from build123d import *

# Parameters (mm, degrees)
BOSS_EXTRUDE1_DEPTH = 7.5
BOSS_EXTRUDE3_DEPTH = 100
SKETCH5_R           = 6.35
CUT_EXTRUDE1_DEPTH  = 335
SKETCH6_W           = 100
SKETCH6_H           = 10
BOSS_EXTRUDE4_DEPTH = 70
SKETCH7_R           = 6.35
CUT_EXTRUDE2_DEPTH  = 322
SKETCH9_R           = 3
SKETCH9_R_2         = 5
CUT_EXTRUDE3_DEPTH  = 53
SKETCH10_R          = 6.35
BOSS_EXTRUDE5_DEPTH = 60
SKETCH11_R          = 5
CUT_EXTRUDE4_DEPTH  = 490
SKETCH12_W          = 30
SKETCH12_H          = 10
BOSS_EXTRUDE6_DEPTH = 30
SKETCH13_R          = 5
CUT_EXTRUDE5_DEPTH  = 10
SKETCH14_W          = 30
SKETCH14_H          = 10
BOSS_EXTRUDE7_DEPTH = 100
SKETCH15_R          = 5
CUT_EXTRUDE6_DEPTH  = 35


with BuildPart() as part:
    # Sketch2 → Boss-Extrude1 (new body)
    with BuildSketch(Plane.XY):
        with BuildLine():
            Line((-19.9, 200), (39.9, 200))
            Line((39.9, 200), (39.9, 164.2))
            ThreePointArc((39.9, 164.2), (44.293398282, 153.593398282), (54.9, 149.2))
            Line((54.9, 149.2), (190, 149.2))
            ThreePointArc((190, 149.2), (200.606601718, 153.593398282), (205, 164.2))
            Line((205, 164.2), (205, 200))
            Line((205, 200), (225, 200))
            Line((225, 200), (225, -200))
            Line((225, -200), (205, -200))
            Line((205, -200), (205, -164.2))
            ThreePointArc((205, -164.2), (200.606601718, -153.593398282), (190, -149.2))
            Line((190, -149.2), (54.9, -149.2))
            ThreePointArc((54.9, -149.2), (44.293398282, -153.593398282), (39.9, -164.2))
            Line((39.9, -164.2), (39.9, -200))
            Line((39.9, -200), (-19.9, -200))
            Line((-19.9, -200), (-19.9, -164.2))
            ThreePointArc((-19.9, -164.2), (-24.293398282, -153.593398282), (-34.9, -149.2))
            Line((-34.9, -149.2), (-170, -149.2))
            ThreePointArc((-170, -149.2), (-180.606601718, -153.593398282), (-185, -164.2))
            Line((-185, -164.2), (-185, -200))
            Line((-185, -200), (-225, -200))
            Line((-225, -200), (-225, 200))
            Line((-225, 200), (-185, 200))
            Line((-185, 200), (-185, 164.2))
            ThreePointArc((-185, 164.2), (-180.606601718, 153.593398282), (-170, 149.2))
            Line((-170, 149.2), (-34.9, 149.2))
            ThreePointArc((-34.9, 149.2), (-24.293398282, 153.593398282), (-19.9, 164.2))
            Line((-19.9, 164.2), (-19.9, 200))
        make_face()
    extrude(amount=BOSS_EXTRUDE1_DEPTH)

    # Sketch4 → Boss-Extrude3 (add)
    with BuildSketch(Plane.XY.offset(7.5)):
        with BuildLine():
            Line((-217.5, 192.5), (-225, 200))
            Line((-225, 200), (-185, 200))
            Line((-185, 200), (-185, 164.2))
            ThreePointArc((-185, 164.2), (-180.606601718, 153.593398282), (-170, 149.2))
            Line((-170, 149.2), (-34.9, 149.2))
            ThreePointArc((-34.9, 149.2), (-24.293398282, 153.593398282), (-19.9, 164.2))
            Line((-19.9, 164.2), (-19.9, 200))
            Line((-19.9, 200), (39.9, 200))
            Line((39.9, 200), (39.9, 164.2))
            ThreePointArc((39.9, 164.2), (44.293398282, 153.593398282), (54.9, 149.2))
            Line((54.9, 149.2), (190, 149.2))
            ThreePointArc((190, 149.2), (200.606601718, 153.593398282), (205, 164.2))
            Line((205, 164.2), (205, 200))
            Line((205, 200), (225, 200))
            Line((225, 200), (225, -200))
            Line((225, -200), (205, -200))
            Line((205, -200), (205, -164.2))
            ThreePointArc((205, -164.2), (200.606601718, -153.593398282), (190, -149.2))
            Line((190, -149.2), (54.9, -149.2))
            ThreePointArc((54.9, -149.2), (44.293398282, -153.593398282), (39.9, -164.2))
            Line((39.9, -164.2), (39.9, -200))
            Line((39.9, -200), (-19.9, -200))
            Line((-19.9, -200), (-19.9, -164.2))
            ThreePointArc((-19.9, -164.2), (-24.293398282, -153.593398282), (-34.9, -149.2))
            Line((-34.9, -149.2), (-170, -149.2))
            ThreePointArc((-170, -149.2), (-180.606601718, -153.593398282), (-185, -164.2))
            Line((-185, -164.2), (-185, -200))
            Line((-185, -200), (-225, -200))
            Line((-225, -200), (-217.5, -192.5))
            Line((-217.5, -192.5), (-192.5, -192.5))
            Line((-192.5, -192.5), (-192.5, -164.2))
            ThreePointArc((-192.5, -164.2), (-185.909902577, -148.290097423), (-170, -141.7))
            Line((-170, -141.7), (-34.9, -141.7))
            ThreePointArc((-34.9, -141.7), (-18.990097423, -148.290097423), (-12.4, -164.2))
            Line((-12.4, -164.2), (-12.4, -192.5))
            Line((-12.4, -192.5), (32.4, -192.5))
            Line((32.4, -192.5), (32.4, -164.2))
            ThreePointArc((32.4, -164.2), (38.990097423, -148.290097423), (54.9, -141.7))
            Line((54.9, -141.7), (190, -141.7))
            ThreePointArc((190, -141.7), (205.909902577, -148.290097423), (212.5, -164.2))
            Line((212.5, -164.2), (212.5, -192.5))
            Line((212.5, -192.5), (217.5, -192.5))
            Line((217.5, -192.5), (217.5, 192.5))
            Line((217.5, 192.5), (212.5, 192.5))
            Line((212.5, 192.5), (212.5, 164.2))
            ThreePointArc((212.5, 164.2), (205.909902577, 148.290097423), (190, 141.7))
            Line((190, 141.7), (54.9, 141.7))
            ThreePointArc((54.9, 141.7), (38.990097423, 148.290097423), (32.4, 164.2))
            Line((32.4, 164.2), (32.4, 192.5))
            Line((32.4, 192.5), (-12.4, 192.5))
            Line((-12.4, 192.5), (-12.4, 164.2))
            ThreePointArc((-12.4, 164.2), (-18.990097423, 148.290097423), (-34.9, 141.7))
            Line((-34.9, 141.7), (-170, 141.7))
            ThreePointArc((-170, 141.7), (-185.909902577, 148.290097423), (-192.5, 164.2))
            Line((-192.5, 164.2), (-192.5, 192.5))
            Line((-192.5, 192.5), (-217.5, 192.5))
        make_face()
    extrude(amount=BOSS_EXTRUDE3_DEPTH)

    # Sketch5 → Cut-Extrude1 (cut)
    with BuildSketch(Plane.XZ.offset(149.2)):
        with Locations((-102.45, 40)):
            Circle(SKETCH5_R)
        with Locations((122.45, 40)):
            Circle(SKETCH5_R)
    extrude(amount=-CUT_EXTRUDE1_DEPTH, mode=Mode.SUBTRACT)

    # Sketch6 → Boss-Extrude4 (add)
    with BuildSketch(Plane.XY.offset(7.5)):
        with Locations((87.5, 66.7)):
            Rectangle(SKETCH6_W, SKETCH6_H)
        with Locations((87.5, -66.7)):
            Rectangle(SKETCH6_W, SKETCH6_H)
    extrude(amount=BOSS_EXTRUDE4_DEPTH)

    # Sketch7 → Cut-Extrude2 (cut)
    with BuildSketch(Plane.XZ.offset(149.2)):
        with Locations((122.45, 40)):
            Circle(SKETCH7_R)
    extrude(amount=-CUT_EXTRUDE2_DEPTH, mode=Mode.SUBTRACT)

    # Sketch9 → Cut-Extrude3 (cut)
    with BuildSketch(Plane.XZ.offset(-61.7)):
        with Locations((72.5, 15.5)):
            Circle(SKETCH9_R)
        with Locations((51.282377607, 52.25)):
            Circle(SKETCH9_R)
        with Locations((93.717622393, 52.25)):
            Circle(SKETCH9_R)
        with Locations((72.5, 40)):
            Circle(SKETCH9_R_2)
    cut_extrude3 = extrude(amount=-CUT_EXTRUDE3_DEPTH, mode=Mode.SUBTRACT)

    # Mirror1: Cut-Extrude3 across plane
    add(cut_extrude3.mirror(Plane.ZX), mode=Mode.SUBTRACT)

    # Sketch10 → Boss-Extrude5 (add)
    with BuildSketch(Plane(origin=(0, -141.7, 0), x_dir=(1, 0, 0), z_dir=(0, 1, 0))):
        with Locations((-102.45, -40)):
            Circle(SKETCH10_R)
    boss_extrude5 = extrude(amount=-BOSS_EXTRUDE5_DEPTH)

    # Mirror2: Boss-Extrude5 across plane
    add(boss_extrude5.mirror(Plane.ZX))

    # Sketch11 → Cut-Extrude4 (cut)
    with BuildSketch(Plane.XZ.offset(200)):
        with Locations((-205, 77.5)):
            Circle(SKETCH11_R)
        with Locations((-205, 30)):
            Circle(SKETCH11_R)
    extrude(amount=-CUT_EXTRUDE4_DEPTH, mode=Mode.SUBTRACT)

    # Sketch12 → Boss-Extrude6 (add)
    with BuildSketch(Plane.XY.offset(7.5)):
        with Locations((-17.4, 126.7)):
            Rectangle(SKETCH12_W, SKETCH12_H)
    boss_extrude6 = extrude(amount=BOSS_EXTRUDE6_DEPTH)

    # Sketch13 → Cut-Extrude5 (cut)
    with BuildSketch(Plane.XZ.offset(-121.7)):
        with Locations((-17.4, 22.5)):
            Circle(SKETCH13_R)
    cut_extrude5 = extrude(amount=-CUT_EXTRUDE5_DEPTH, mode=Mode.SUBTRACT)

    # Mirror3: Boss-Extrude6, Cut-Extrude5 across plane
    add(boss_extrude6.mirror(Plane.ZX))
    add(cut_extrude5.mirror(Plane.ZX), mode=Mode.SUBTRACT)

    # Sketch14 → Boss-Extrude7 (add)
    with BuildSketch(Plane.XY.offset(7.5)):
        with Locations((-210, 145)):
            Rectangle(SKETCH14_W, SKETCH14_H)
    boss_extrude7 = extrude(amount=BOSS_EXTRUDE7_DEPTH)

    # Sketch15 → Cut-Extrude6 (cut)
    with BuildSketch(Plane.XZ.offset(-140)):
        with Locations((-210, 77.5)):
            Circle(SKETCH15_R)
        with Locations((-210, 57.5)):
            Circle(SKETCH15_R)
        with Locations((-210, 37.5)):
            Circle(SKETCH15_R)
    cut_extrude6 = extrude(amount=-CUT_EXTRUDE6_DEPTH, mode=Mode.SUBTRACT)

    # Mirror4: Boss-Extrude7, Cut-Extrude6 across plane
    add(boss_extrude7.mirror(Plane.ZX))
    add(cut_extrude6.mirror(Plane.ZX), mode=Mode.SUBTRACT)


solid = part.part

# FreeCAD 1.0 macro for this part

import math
import FreeCAD as App
import Part
import Sketcher
Q = App.Units.Quantity

doc = App.newDocument("Part")
body = doc.addObject("PartDesign::Body", "Body")

sketch1 = body.newObject("Sketcher::SketchObject", "Sketch")
sketch1.AttachmentSupport = (doc.getObject("XY_Plane"), [""])
sketch1.MapMode = "FlatFace"
sketch1.addGeometry(Part.LineSegment(App.Vector(40, 200, 0), App.Vector(-20, 200, 0)), False)
sketch1.addGeometry(Part.LineSegment(App.Vector(-20, 200, 0), App.Vector(-20, 164, 0)), False)
sketch1.addGeometry(Part.ArcOfCircle(Part.Circle(App.Vector(-35, 164, 0), App.Vector(0, 0, 1), 15), math.radians(-90), math.radians(0)), False)
sketch1.addGeometry(Part.LineSegment(App.Vector(-35, 149, 0), App.Vector(-170, 149, 0)), False)
sketch1.addGeometry(Part.ArcOfCircle(Part.Circle(App.Vector(-170, 164, 0), App.Vector(0, 0, 1), 15), math.radians(180), math.radians(270)), False)
sketch1.addGeometry(Part.LineSegment(App.Vector(-185, 164, 0), App.Vector(-185, 200, 0)), False)
sketch1.addGeometry(Part.LineSegment(App.Vector(-185, 200, 0), App.Vector(-225, 200, 0)), False)
sketch1.addGeometry(Part.LineSegment(App.Vector(-225, 200, 0), App.Vector(-225, -200, 0)), False)
sketch1.addGeometry(Part.LineSegment(App.Vector(-225, -200, 0), App.Vector(-185, -200, 0)), False)
sketch1.addGeometry(Part.LineSegment(App.Vector(-185, -200, 0), App.Vector(-185, -164, 0)), False)
sketch1.addGeometry(Part.ArcOfCircle(Part.Circle(App.Vector(-170, -164, 0), App.Vector(0, 0, 1), 15), math.radians(90), math.radians(180)), False)
sketch1.addGeometry(Part.LineSegment(App.Vector(-170, -149, 0), App.Vector(-35, -149, 0)), False)
sketch1.addGeometry(Part.ArcOfCircle(Part.Circle(App.Vector(-35, -164, 0), App.Vector(0, 0, 1), 15), math.radians(0), math.radians(90)), False)
sketch1.addGeometry(Part.LineSegment(App.Vector(-20, -164, 0), App.Vector(-20, -200, 0)), False)
sketch1.addGeometry(Part.LineSegment(App.Vector(-20, -200, 0), App.Vector(40, -200, 0)), False)
sketch1.addGeometry(Part.LineSegment(App.Vector(40, -200, 0), App.Vector(40, -164, 0)), False)
sketch1.addGeometry(Part.ArcOfCircle(Part.Circle(App.Vector(55, -164, 0), App.Vector(0, 0, 1), 15), math.radians(90), math.radians(180)), False)
sketch1.addGeometry(Part.LineSegment(App.Vector(55, -149, 0), App.Vector(190, -149, 0)), False)
sketch1.addGeometry(Part.ArcOfCircle(Part.Circle(App.Vector(190, -164, 0), App.Vector(0, 0, 1), 15), math.radians(0), math.radians(90)), False)
sketch1.addGeometry(Part.LineSegment(App.Vector(205, -164, 0), App.Vector(205, -200, 0)), False)
sketch1.addGeometry(Part.LineSegment(App.Vector(205, -200, 0), App.Vector(225, -200, 0)), False)
sketch1.addGeometry(Part.LineSegment(App.Vector(225, -200, 0), App.Vector(225, 200, 0)), False)
sketch1.addGeometry(Part.LineSegment(App.Vector(225, 200, 0), App.Vector(205, 200, 0)), False)
sketch1.addGeometry(Part.LineSegment(App.Vector(205, 200, 0), App.Vector(205, 164, 0)), False)
sketch1.addGeometry(Part.ArcOfCircle(Part.Circle(App.Vector(190, 164, 0), App.Vector(0, 0, 1), 15), math.radians(-90), math.radians(0)), False)
sketch1.addGeometry(Part.LineSegment(App.Vector(190, 149, 0), App.Vector(55, 149, 0)), False)
sketch1.addGeometry(Part.ArcOfCircle(Part.Circle(App.Vector(55, 164, 0), App.Vector(0, 0, 1), 15), math.radians(180), math.radians(270)), False)
sketch1.addGeometry(Part.LineSegment(App.Vector(40, 164, 0), App.Vector(40, 200, 0)), False)
sketch1.addConstraint(Sketcher.Constraint("Coincident", 0, 2, 1, 1))
sketch1.addConstraint(Sketcher.Constraint("Tangent", 1, 2, 2, 2))
sketch1.addConstraint(Sketcher.Constraint("Tangent", 2, 1, 3, 1))
sketch1.addConstraint(Sketcher.Constraint("Tangent", 3, 2, 4, 2))
sketch1.addConstraint(Sketcher.Constraint("Tangent", 4, 1, 5, 1))
sketch1.addConstraint(Sketcher.Constraint("Coincident", 5, 2, 6, 1))
sketch1.addConstraint(Sketcher.Constraint("Coincident", 6, 2, 7, 1))
sketch1.addConstraint(Sketcher.Constraint("Coincident", 7, 2, 8, 1))
sketch1.addConstraint(Sketcher.Constraint("Coincident", 8, 2, 9, 1))
sketch1.addConstraint(Sketcher.Constraint("Tangent", 9, 2, 10, 2))
sketch1.addConstraint(Sketcher.Constraint("Tangent", 10, 1, 11, 1))
sketch1.addConstraint(Sketcher.Constraint("Tangent", 11, 2, 12, 2))
sketch1.addConstraint(Sketcher.Constraint("Tangent", 12, 1, 13, 1))
sketch1.addConstraint(Sketcher.Constraint("Coincident", 13, 2, 14, 1))
sketch1.addConstraint(Sketcher.Constraint("Coincident", 14, 2, 15, 1))
sketch1.addConstraint(Sketcher.Constraint("Tangent", 15, 2, 16, 2))
sketch1.addConstraint(Sketcher.Constraint("Tangent", 16, 1, 17, 1))
sketch1.addConstraint(Sketcher.Constraint("Tangent", 17, 2, 18, 2))
sketch1.addConstraint(Sketcher.Constraint("Tangent", 18, 1, 19, 1))
sketch1.addConstraint(Sketcher.Constraint("Coincident", 19, 2, 20, 1))
sketch1.addConstraint(Sketcher.Constraint("Coincident", 20, 2, 21, 1))
sketch1.addConstraint(Sketcher.Constraint("Coincident", 21, 2, 22, 1))
sketch1.addConstraint(Sketcher.Constraint("Coincident", 22, 2, 23, 1))
sketch1.addConstraint(Sketcher.Constraint("Tangent", 23, 2, 24, 2))
sketch1.addConstraint(Sketcher.Constraint("Tangent", 24, 1, 25, 1))
sketch1.addConstraint(Sketcher.Constraint("Tangent", 25, 2, 26, 2))
sketch1.addConstraint(Sketcher.Constraint("Tangent", 26, 1, 27, 1))
sketch1.addConstraint(Sketcher.Constraint("Coincident", 27, 2, 0, 1))
sketch1.addConstraint(Sketcher.Constraint("Horizontal", 0))
sketch1.addConstraint(Sketcher.Constraint("Vertical", 1))
sketch1.addConstraint(Sketcher.Constraint("Horizontal", 3))
sketch1.addConstraint(Sketcher.Constraint("Vertical", 5))
sketch1.addConstraint(Sketcher.Constraint("Horizontal", 6))
sketch1.addConstraint(Sketcher.Constraint("Vertical", 7))
sketch1.addConstraint(Sketcher.Constraint("Horizontal", 8))
sketch1.addConstraint(Sketcher.Constraint("Vertical", 9))
sketch1.addConstraint(Sketcher.Constraint("Horizontal", 11))
sketch1.addConstraint(Sketcher.Constraint("Vertical", 13))
sketch1.addConstraint(Sketcher.Constraint("Horizontal", 14))
sketch1.addConstraint(Sketcher.Constraint("Vertical", 15))
sketch1.addConstraint(Sketcher.Constraint("Horizontal", 17))
sketch1.addConstraint(Sketcher.Constraint("Vertical", 19))
sketch1.addConstraint(Sketcher.Constraint("Horizontal", 20))
sketch1.addConstraint(Sketcher.Constraint("Vertical", 21))
sketch1.addConstraint(Sketcher.Constraint("Horizontal", 22))
sketch1.addConstraint(Sketcher.Constraint("Vertical", 23))
sketch1.addConstraint(Sketcher.Constraint("Horizontal", 25))
sketch1.addConstraint(Sketcher.Constraint("Vertical", 27))
sketch1.addConstraint(Sketcher.Constraint("Equal", 2, 4))
sketch1.addConstraint(Sketcher.Constraint("Equal", 4, 10))
sketch1.addConstraint(Sketcher.Constraint("Equal", 10, 12))
sketch1.addConstraint(Sketcher.Constraint("Equal", 12, 16))
sketch1.addConstraint(Sketcher.Constraint("Equal", 16, 18))
sketch1.addConstraint(Sketcher.Constraint("Equal", 18, 24))
sketch1.addConstraint(Sketcher.Constraint("Equal", 24, 26))
sketch1.addConstraint(Sketcher.Constraint("Symmetric", 6, 2, 20, 2, -1, 1))
sketch1.addConstraint(Sketcher.Constraint("Symmetric", 4, 3, 10, 3, -1))
sketch1.addConstraint(Sketcher.Constraint("Symmetric", 18, 3, 24, 3, -1))
sketch1.addConstraint(Sketcher.Constraint("Symmetric", 0, 2, 13, 2, -1))
sketch1.addConstraint(Sketcher.Constraint("Horizontal", 12, 3, 16, 3))
sketch1.addConstraint(Sketcher.Constraint("Horizontal", 0, 2, 5, 2))
sketch1.addConstraint(Sketcher.Constraint("Horizontal", 8, 2, 13, 2))
sketch1.addConstraint(Sketcher.Constraint("Horizontal", 6, 2, 21, 2))
sketch1.addConstraint(Sketcher.Constraint("Vertical", 16, 3, 26, 3))
sketch1.addConstraint(Sketcher.Constraint("Equal", 11, 17))
sketch1.addConstraint(Sketcher.Constraint("Radius", 2, Q("15 mm")))
sketch1.addConstraint(Sketcher.Constraint("DistanceX", 6, 2, 6, 1, Q("40 mm")))
sketch1.addConstraint(Sketcher.Constraint("DistanceX", 20, 1, 20, 2, Q("20 mm")))
sketch1.addConstraint(Sketcher.Constraint("DistanceY", 7, 2, 7, 1, Q("400 mm")))
sketch1.addConstraint(Sketcher.Constraint("DistanceX", 0, 2, 0, 1, Q("59.8 mm")))
sketch1.addConstraint(Sketcher.Constraint("DistanceX", 3, 2, 3, 1, Q("135.1 mm")))
sketch1.addConstraint(Sketcher.Constraint("DistanceY", 1, 2, 1, 1, Q("35.8 mm")))
pad1 = body.newObject("PartDesign::Pad", "Pad")
pad1.Profile = sketch1
pad1.Length = 7.5

sketch2 = body.newObject("Sketcher::SketchObject", "Sketch001")
sketch2.AttachmentSupport = (doc.getObject("XY_Plane"), [""])
sketch2.MapMode = "FlatFace"
sketch2.AttachmentOffset = App.Placement(App.Vector(0, 0, 7.5), App.Rotation())
sketch2.addGeometry(Part.LineSegment(App.Vector(-225, 200, 0), App.Vector(-218, 192, 0)), False)
sketch2.addGeometry(Part.LineSegment(App.Vector(-218, 192, 0), App.Vector(-192, 192, 0)), False)
sketch2.addGeometry(Part.LineSegment(App.Vector(-192, 192, 0), App.Vector(-192, 164, 0)), False)
sketch2.addGeometry(Part.ArcOfCircle(Part.Circle(App.Vector(-170, 164, 0), App.Vector(0, 0, 1), 22), math.radians(180), math.radians(270)), False)
sketch2.addGeometry(Part.LineSegment(App.Vector(-170, 142, 0), App.Vector(-35, 142, 0)), False)
sketch2.addGeometry(Part.ArcOfCircle(Part.Circle(App.Vector(-35, 164, 0), App.Vector(0, 0, 1), 22), math.radians(-90), math.radians(0)), False)
sketch2.addGeometry(Part.LineSegment(App.Vector(-12, 164, 0), App.Vector(-12, 192, 0)), False)
sketch2.addGeometry(Part.LineSegment(App.Vector(-12, 192, 0), App.Vector(32, 192, 0)), False)
sketch2.addGeometry(Part.LineSegment(App.Vector(32, 192, 0), App.Vector(32, 164, 0)), False)
sketch2.addGeometry(Part.ArcOfCircle(Part.Circle(App.Vector(55, 164, 0), App.Vector(0, 0, 1), 22), math.radians(180), math.radians(270)), False)
sketch2.addGeometry(Part.LineSegment(App.Vector(55, 142, 0), App.Vector(190, 142, 0)), False)
sketch2.addGeometry(Part.ArcOfCircle(Part.Circle(App.Vector(190, 164, 0), App.Vector(0, 0, 1), 22), math.radians(-90), math.radians(0)), False)
sketch2.addGeometry(Part.LineSegment(App.Vector(212, 164, 0), App.Vector(212, 192, 0)), False)
sketch2.addGeometry(Part.LineSegment(App.Vector(212, 192, 0), App.Vector(218, 192, 0)), False)
sketch2.addGeometry(Part.LineSegment(App.Vector(218, 192, 0), App.Vector(218, -192, 0)), False)
sketch2.addGeometry(Part.LineSegment(App.Vector(218, -192, 0), App.Vector(212, -192, 0)), False)
sketch2.addGeometry(Part.LineSegment(App.Vector(212, -192, 0), App.Vector(212, -164, 0)), False)
sketch2.addGeometry(Part.ArcOfCircle(Part.Circle(App.Vector(190, -164, 0), App.Vector(0, 0, 1), 22), math.radians(0), math.radians(90)), False)
sketch2.addGeometry(Part.LineSegment(App.Vector(190, -142, 0), App.Vector(55, -142, 0)), False)
sketch2.addGeometry(Part.ArcOfCircle(Part.Circle(App.Vector(55, -164, 0), App.Vector(0, 0, 1), 22), math.radians(90), math.radians(180)), False)
sketch2.addGeometry(Part.LineSegment(App.Vector(32, -164, 0), App.Vector(32, -192, 0)), False)
sketch2.addGeometry(Part.LineSegment(App.Vector(32, -192, 0), App.Vector(-12, -192, 0)), False)
sketch2.addGeometry(Part.LineSegment(App.Vector(-12, -192, 0), App.Vector(-12, -164, 0)), False)
sketch2.addGeometry(Part.ArcOfCircle(Part.Circle(App.Vector(-35, -164, 0), App.Vector(0, 0, 1), 22), math.radians(0), math.radians(90)), False)
sketch2.addGeometry(Part.LineSegment(App.Vector(-35, -142, 0), App.Vector(-170, -142, 0)), False)
sketch2.addGeometry(Part.ArcOfCircle(Part.Circle(App.Vector(-170, -164, 0), App.Vector(0, 0, 1), 22), math.radians(90), math.radians(180)), False)
sketch2.addGeometry(Part.LineSegment(App.Vector(-192, -164, 0), App.Vector(-192, -192, 0)), False)
sketch2.addGeometry(Part.LineSegment(App.Vector(-192, -192, 0), App.Vector(-218, -192, 0)), False)
sketch2.addGeometry(Part.LineSegment(App.Vector(-218, -192, 0), App.Vector(-225, -200, 0)), False)
sketch2.addGeometry(Part.LineSegment(App.Vector(-225, -200, 0), App.Vector(-185, -200, 0)), False)
sketch2.addGeometry(Part.LineSegment(App.Vector(-185, -200, 0), App.Vector(-185, -164, 0)), False)
sketch2.addGeometry(Part.ArcOfCircle(Part.Circle(App.Vector(-170, -164, 0), App.Vector(0, 0, 1), 15), math.radians(90), math.radians(180)), False)
sketch2.addGeometry(Part.LineSegment(App.Vector(-170, -149, 0), App.Vector(-35, -149, 0)), False)
sketch2.addGeometry(Part.ArcOfCircle(Part.Circle(App.Vector(-35, -164, 0), App.Vector(0, 0, 1), 15), math.radians(0), math.radians(90)), False)
sketch2.addGeometry(Part.LineSegment(App.Vector(-20, -164, 0), App.Vector(-20, -200, 0)), False)
sketch2.addGeometry(Part.LineSegment(App.Vector(-20, -200, 0), App.Vector(40, -200, 0)), False)
sketch2.addGeometry(Part.LineSegment(App.Vector(40, -200, 0), App.Vector(40, -164, 0)), False)
sketch2.addGeometry(Part.ArcOfCircle(Part.Circle(App.Vector(55, -164, 0), App.Vector(0, 0, 1), 15), math.radians(90), math.radians(180)), False)
sketch2.addGeometry(Part.LineSegment(App.Vector(55, -149, 0), App.Vector(190, -149, 0)), False)
sketch2.addGeometry(Part.ArcOfCircle(Part.Circle(App.Vector(190, -164, 0), App.Vector(0, 0, 1), 15), math.radians(0), math.radians(90)), False)
sketch2.addGeometry(Part.LineSegment(App.Vector(205, -164, 0), App.Vector(205, -200, 0)), False)
sketch2.addGeometry(Part.LineSegment(App.Vector(205, -200, 0), App.Vector(225, -200, 0)), False)
sketch2.addGeometry(Part.LineSegment(App.Vector(225, -200, 0), App.Vector(225, 200, 0)), False)
sketch2.addGeometry(Part.LineSegment(App.Vector(225, 200, 0), App.Vector(205, 200, 0)), False)
sketch2.addGeometry(Part.LineSegment(App.Vector(205, 200, 0), App.Vector(205, 164, 0)), False)
sketch2.addGeometry(Part.ArcOfCircle(Part.Circle(App.Vector(190, 164, 0), App.Vector(0, 0, 1), 15), math.radians(-90), math.radians(0)), False)
sketch2.addGeometry(Part.LineSegment(App.Vector(190, 149, 0), App.Vector(55, 149, 0)), False)
sketch2.addGeometry(Part.ArcOfCircle(Part.Circle(App.Vector(55, 164, 0), App.Vector(0, 0, 1), 15), math.radians(180), math.radians(270)), False)
sketch2.addGeometry(Part.LineSegment(App.Vector(40, 164, 0), App.Vector(40, 200, 0)), False)
sketch2.addGeometry(Part.LineSegment(App.Vector(40, 200, 0), App.Vector(-20, 200, 0)), False)
sketch2.addGeometry(Part.LineSegment(App.Vector(-20, 200, 0), App.Vector(-20, 164, 0)), False)
sketch2.addGeometry(Part.ArcOfCircle(Part.Circle(App.Vector(-35, 164, 0), App.Vector(0, 0, 1), 15), math.radians(-90), math.radians(0)), False)
sketch2.addGeometry(Part.LineSegment(App.Vector(-35, 149, 0), App.Vector(-170, 149, 0)), False)
sketch2.addGeometry(Part.ArcOfCircle(Part.Circle(App.Vector(-170, 164, 0), App.Vector(0, 0, 1), 15), math.radians(180), math.radians(270)), False)
sketch2.addGeometry(Part.LineSegment(App.Vector(-185, 164, 0), App.Vector(-185, 200, 0)), False)
sketch2.addGeometry(Part.LineSegment(App.Vector(-185, 200, 0), App.Vector(-225, 200, 0)), False)
sketch2.addConstraint(Sketcher.Constraint("Coincident", 0, 2, 1, 1))
sketch2.addConstraint(Sketcher.Constraint("Coincident", 1, 2, 2, 1))
sketch2.addConstraint(Sketcher.Constraint("Tangent", 2, 2, 3, 1))
sketch2.addConstraint(Sketcher.Constraint("Tangent", 3, 2, 4, 1))
sketch2.addConstraint(Sketcher.Constraint("Tangent", 4, 2, 5, 1))
sketch2.addConstraint(Sketcher.Constraint("Tangent", 5, 2, 6, 1))
sketch2.addConstraint(Sketcher.Constraint("Coincident", 6, 2, 7, 1))
sketch2.addConstraint(Sketcher.Constraint("Coincident", 7, 2, 8, 1))
sketch2.addConstraint(Sketcher.Constraint("Tangent", 8, 2, 9, 1))
sketch2.addConstraint(Sketcher.Constraint("Tangent", 9, 2, 10, 1))
sketch2.addConstraint(Sketcher.Constraint("Tangent", 10, 2, 11, 1))
sketch2.addConstraint(Sketcher.Constraint("Tangent", 11, 2, 12, 1))
sketch2.addConstraint(Sketcher.Constraint("Coincident", 12, 2, 13, 1))
sketch2.addConstraint(Sketcher.Constraint("Coincident", 13, 2, 14, 1))
sketch2.addConstraint(Sketcher.Constraint("Coincident", 14, 2, 15, 1))
sketch2.addConstraint(Sketcher.Constraint("Coincident", 15, 2, 16, 1))
sketch2.addConstraint(Sketcher.Constraint("Tangent", 16, 2, 17, 1))
sketch2.addConstraint(Sketcher.Constraint("Tangent", 17, 2, 18, 1))
sketch2.addConstraint(Sketcher.Constraint("Tangent", 18, 2, 19, 1))
sketch2.addConstraint(Sketcher.Constraint("Tangent", 19, 2, 20, 1))
sketch2.addConstraint(Sketcher.Constraint("Coincident", 20, 2, 21, 1))
sketch2.addConstraint(Sketcher.Constraint("Coincident", 21, 2, 22, 1))
sketch2.addConstraint(Sketcher.Constraint("Tangent", 22, 2, 23, 1))
sketch2.addConstraint(Sketcher.Constraint("Tangent", 23, 2, 24, 1))
sketch2.addConstraint(Sketcher.Constraint("Tangent", 24, 2, 25, 1))
sketch2.addConstraint(Sketcher.Constraint("Tangent", 25, 2, 26, 1))
sketch2.addConstraint(Sketcher.Constraint("Coincident", 26, 2, 27, 1))
sketch2.addConstraint(Sketcher.Constraint("Coincident", 27, 2, 28, 1))
sketch2.addConstraint(Sketcher.Constraint("Coincident", 28, 2, 29, 1))
sketch2.addConstraint(Sketcher.Constraint("Coincident", 29, 2, 30, 1))
sketch2.addConstraint(Sketcher.Constraint("Tangent", 30, 2, 31, 2))
sketch2.addConstraint(Sketcher.Constraint("Tangent", 31, 1, 32, 1))
sketch2.addConstraint(Sketcher.Constraint("Tangent", 32, 2, 33, 2))
sketch2.addConstraint(Sketcher.Constraint("Tangent", 33, 1, 34, 1))
sketch2.addConstraint(Sketcher.Constraint("Coincident", 34, 2, 35, 1))
sketch2.addConstraint(Sketcher.Constraint("Coincident", 35, 2, 36, 1))
sketch2.addConstraint(Sketcher.Constraint("Tangent", 36, 2, 37, 2))
sketch2.addConstraint(Sketcher.Constraint("Tangent", 37, 1, 38, 1))
sketch2.addConstraint(Sketcher.Constraint("Tangent", 38, 2, 39, 2))
sketch2.addConstraint(Sketcher.Constraint("Tangent", 39, 1, 40, 1))
sketch2.addConstraint(Sketcher.Constraint("Coincident", 40, 2, 41, 1))
sketch2.addConstraint(Sketcher.Constraint("Coincident", 41, 2, 42, 1))
sketch2.addConstraint(Sketcher.Constraint("Coincident", 42, 2, 43, 1))
sketch2.addConstraint(Sketcher.Constraint("Coincident", 43, 2, 44, 1))
sketch2.addConstraint(Sketcher.Constraint("Tangent", 44, 2, 45, 2))
sketch2.addConstraint(Sketcher.Constraint("Tangent", 45, 1, 46, 1))
sketch2.addConstraint(Sketcher.Constraint("Tangent", 46, 2, 47, 2))
sketch2.addConstraint(Sketcher.Constraint("Tangent", 47, 1, 48, 1))
sketch2.addConstraint(Sketcher.Constraint("Coincident", 48, 2, 49, 1))
sketch2.addConstraint(Sketcher.Constraint("Coincident", 49, 2, 50, 1))
sketch2.addConstraint(Sketcher.Constraint("Tangent", 50, 2, 51, 2))
sketch2.addConstraint(Sketcher.Constraint("Tangent", 51, 1, 52, 1))
sketch2.addConstraint(Sketcher.Constraint("Tangent", 52, 2, 53, 2))
sketch2.addConstraint(Sketcher.Constraint("Tangent", 53, 1, 54, 1))
sketch2.addConstraint(Sketcher.Constraint("Coincident", 54, 2, 55, 1))
sketch2.addConstraint(Sketcher.Constraint("Coincident", 55, 2, 0, 1))
sketch2.addConstraint(Sketcher.Constraint("Horizontal", 1))
sketch2.addConstraint(Sketcher.Constraint("Vertical", 2))
sketch2.addConstraint(Sketcher.Constraint("Horizontal", 4))
sketch2.addConstraint(Sketcher.Constraint("Vertical", 6))
sketch2.addConstraint(Sketcher.Constraint("Horizontal", 7))
sketch2.addConstraint(Sketcher.Constraint("Vertical", 8))
sketch2.addConstraint(Sketcher.Constraint("Horizontal", 10))
sketch2.addConstraint(Sketcher.Constraint("Vertical", 12))
sketch2.addConstraint(Sketcher.Constraint("Horizontal", 13))
sketch2.addConstraint(Sketcher.Constraint("Vertical", 14))
sketch2.addConstraint(Sketcher.Constraint("Horizontal", 15))
sketch2.addConstraint(Sketcher.Constraint("Vertical", 16))
sketch2.addConstraint(Sketcher.Constraint("Horizontal", 18))
sketch2.addConstraint(Sketcher.Constraint("Vertical", 20))
sketch2.addConstraint(Sketcher.Constraint("Horizontal", 21))
sketch2.addConstraint(Sketcher.Constraint("Vertical", 22))
sketch2.addConstraint(Sketcher.Constraint("Horizontal", 24))
sketch2.addConstraint(Sketcher.Constraint("Vertical", 26))
sketch2.addConstraint(Sketcher.Constraint("Horizontal", 27))
sketch2.addConstraint(Sketcher.Constraint("Horizontal", 29))
sketch2.addConstraint(Sketcher.Constraint("Vertical", 30))
sketch2.addConstraint(Sketcher.Constraint("Horizontal", 32))
sketch2.addConstraint(Sketcher.Constraint("Vertical", 34))
sketch2.addConstraint(Sketcher.Constraint("Horizontal", 35))
sketch2.addConstraint(Sketcher.Constraint("Vertical", 36))
sketch2.addConstraint(Sketcher.Constraint("Horizontal", 38))
sketch2.addConstraint(Sketcher.Constraint("Vertical", 40))
sketch2.addConstraint(Sketcher.Constraint("Horizontal", 41))
sketch2.addConstraint(Sketcher.Constraint("Vertical", 42))
sketch2.addConstraint(Sketcher.Constraint("Horizontal", 43))
sketch2.addConstraint(Sketcher.Constraint("Vertical", 44))
sketch2.addConstraint(Sketcher.Constraint("Horizontal", 46))
sketch2.addConstraint(Sketcher.Constraint("Vertical", 48))
sketch2.addConstraint(Sketcher.Constraint("Horizontal", 49))
sketch2.addConstraint(Sketcher.Constraint("Vertical", 50))
sketch2.addConstraint(Sketcher.Constraint("Horizontal", 52))
sketch2.addConstraint(Sketcher.Constraint("Vertical", 54))
sketch2.addConstraint(Sketcher.Constraint("Horizontal", 55))
sketch2.addConstraint(Sketcher.Constraint("Coincident", 31, 3, 25, 3))
sketch2.addConstraint(Sketcher.Constraint("Coincident", 33, 3, 23, 3))
sketch2.addConstraint(Sketcher.Constraint("Coincident", 37, 3, 19, 3))
sketch2.addConstraint(Sketcher.Constraint("Coincident", 39, 3, 17, 3))
sketch2.addConstraint(Sketcher.Constraint("Coincident", 45, 3, 11, 3))
sketch2.addConstraint(Sketcher.Constraint("Coincident", 47, 3, 9, 3))
sketch2.addConstraint(Sketcher.Constraint("Coincident", 51, 3, 5, 3))
sketch2.addConstraint(Sketcher.Constraint("Coincident", 53, 3, 3, 3))
sketch2.addConstraint(Sketcher.Constraint("Equal", 3, 5))
sketch2.addConstraint(Sketcher.Constraint("Equal", 5, 9))
sketch2.addConstraint(Sketcher.Constraint("Equal", 9, 11))
sketch2.addConstraint(Sketcher.Constraint("Equal", 11, 17))
sketch2.addConstraint(Sketcher.Constraint("Equal", 17, 19))
sketch2.addConstraint(Sketcher.Constraint("Equal", 19, 23))
sketch2.addConstraint(Sketcher.Constraint("Equal", 23, 25))
sketch2.addConstraint(Sketcher.Constraint("Equal", 33, 37))
sketch2.addConstraint(Sketcher.Constraint("Equal", 39, 45))
sketch2.addConstraint(Sketcher.Constraint("Equal", 47, 51))
sketch2.addConstraint(Sketcher.Constraint("Symmetric", 0, 2, 14, 2, -1, 1))
sketch2.addConstraint(Sketcher.Constraint("Symmetric", 13, 2, 27, 2, -1, 1))
sketch2.addConstraint(Sketcher.Constraint("Symmetric", 28, 2, 42, 2, -1, 1))
sketch2.addConstraint(Sketcher.Constraint("Symmetric", 41, 2, 55, 2, -1, 1))
sketch2.addConstraint(Sketcher.Constraint("Symmetric", 11, 3, 17, 3, -1))
sketch2.addConstraint(Sketcher.Constraint("Symmetric", 5, 3, 23, 3, -1))
sketch2.addConstraint(Sketcher.Constraint("Symmetric", 7, 2, 20, 2, -1))
sketch2.addConstraint(Sketcher.Constraint("Symmetric", 1, 2, 26, 2, -1))
sketch2.addConstraint(Sketcher.Constraint("Perpendicular", 0, 28))
sketch2.addConstraint(Sketcher.Constraint("Horizontal", 5, 3, 9, 3))
sketch2.addConstraint(Sketcher.Constraint("Horizontal", 1, 2, 6, 2))
sketch2.addConstraint(Sketcher.Constraint("Horizontal", 29, 2, 34, 2))
sketch2.addConstraint(Sketcher.Constraint("Horizontal", 35, 2, 40, 2))
sketch2.addConstraint(Sketcher.Constraint("Horizontal", 43, 2, 48, 2))
sketch2.addConstraint(Sketcher.Constraint("Equal", 4, 10))
sketch2.addConstraint(Sketcher.Constraint("Radius", 31, Q("15 mm")))
sketch2.addConstraint(Sketcher.Constraint("Radius", 3, Q("22.5 mm")))
sketch2.addConstraint(Sketcher.Constraint("DistanceX", 1, 1, 1, 2, Q("25 mm")))
sketch2.addConstraint(Sketcher.Constraint("DistanceX", 13, 1, 13, 2, Q("5 mm")))
sketch2.addConstraint(Sketcher.Constraint("DistanceX", 29, 1, 29, 2, Q("40 mm")))
sketch2.addConstraint(Sketcher.Constraint("DistanceY", 14, 2, 14, 1, Q("385 mm")))
sketch2.addConstraint(Sketcher.Constraint("DistanceX", 4, 1, 4, 2, Q("135.1 mm")))
sketch2.addConstraint(Sketcher.Constraint("DistanceX", 7, 1, 7, 2, Q("44.8 mm")))
sketch2.addConstraint(Sketcher.Constraint("DistanceY", 2, 2, 2, 1, Q("28.3 mm")))
pad2 = body.newObject("PartDesign::Pad", "Pad001")
pad2.Profile = sketch2
pad2.Length = 100

sketch3 = body.newObject("Sketcher::SketchObject", "Sketch002")
sketch3.AttachmentSupport = (doc.getObject("XZ_Plane"), [""])
sketch3.MapMode = "FlatFace"
sketch3.AttachmentOffset = App.Placement(App.Vector(0, 0, 149.2), App.Rotation())
sketch3.addGeometry(Part.Circle(App.Vector(-102, 40, 0), App.Vector(0, 0, 1), 6), False)
sketch3.addGeometry(Part.Circle(App.Vector(122, 40, 0), App.Vector(0, 0, 1), 6), False)
sketch3.addConstraint(Sketcher.Constraint("Equal", 0, 1))
sketch3.addConstraint(Sketcher.Constraint("Horizontal", 0, 3, 1, 3))
sketch3.addConstraint(Sketcher.Constraint("Diameter", 0, Q("12.7 mm")))
sketch3.addConstraint(Sketcher.Constraint("DistanceY", -1, 1, 0, 3, Q("40 mm")))
sketch3.addConstraint(Sketcher.Constraint("DistanceX", 0, 3, 1, 3, Q("224.9 mm")))
sketch3.addConstraint(Sketcher.Constraint("DistanceX", 0, 3, -1, 1, Q("102.45 mm")))
pocket1 = body.newObject("PartDesign::Pocket", "Pocket")
pocket1.Profile = sketch3
pocket1.Length = 335

sketch4 = body.newObject("Sketcher::SketchObject", "Sketch003")
sketch4.AttachmentSupport = (doc.getObject("XY_Plane"), [""])
sketch4.MapMode = "FlatFace"
sketch4.AttachmentOffset = App.Placement(App.Vector(0, 0, 7.5), App.Rotation())
sketch4.addGeometry(Part.LineSegment(App.Vector(38, 72, 0), App.Vector(38, 62, 0)), False)
sketch4.addGeometry(Part.LineSegment(App.Vector(38, 62, 0), App.Vector(138, 62, 0)), False)
sketch4.addGeometry(Part.LineSegment(App.Vector(138, 62, 0), App.Vector(138, 72, 0)), False)
sketch4.addGeometry(Part.LineSegment(App.Vector(138, 72, 0), App.Vector(38, 72, 0)), False)
sketch4.addGeometry(Part.LineSegment(App.Vector(38, -62, 0), App.Vector(38, -72, 0)), False)
sketch4.addGeometry(Part.LineSegment(App.Vector(38, -72, 0), App.Vector(138, -72, 0)), False)
sketch4.addGeometry(Part.LineSegment(App.Vector(138, -72, 0), App.Vector(138, -62, 0)), False)
sketch4.addGeometry(Part.LineSegment(App.Vector(138, -62, 0), App.Vector(38, -62, 0)), False)
sketch4.addConstraint(Sketcher.Constraint("Coincident", 0, 2, 1, 1))
sketch4.addConstraint(Sketcher.Constraint("Coincident", 1, 2, 2, 1))
sketch4.addConstraint(Sketcher.Constraint("Coincident", 2, 2, 3, 1))
sketch4.addConstraint(Sketcher.Constraint("Coincident", 3, 2, 0, 1))
sketch4.addConstraint(Sketcher.Constraint("Coincident", 4, 2, 5, 1))
sketch4.addConstraint(Sketcher.Constraint("Coincident", 5, 2, 6, 1))
sketch4.addConstraint(Sketcher.Constraint("Coincident", 6, 2, 7, 1))
sketch4.addConstraint(Sketcher.Constraint("Coincident", 7, 2, 4, 1))
sketch4.addConstraint(Sketcher.Constraint("Vertical", 0))
sketch4.addConstraint(Sketcher.Constraint("Horizontal", 1))
sketch4.addConstraint(Sketcher.Constraint("Vertical", 2))
sketch4.addConstraint(Sketcher.Constraint("Horizontal", 3))
sketch4.addConstraint(Sketcher.Constraint("Vertical", 4))
sketch4.addConstraint(Sketcher.Constraint("Horizontal", 5))
sketch4.addConstraint(Sketcher.Constraint("Vertical", 6))
sketch4.addConstraint(Sketcher.Constraint("Horizontal", 7))
sketch4.addConstraint(Sketcher.Constraint("Symmetric", 3, 2, 4, 2, -1))
sketch4.addConstraint(Sketcher.Constraint("Symmetric", 1, 2, 6, 2, -1))
sketch4.addConstraint(Sketcher.Constraint("DistanceX", 1, 1, 1, 2, Q("100 mm")))
sketch4.addConstraint(Sketcher.Constraint("DistanceY", 0, 2, 0, 1, Q("10 mm")))
sketch4.addConstraint(Sketcher.Constraint("DistanceX", -1, 1, 0, 2, Q("37.5 mm")))
sketch4.addConstraint(Sketcher.Constraint("DistanceY", -1, 1, 0, 2, Q("61.7 mm")))
pad3 = body.newObject("PartDesign::Pad", "Pad002")
pad3.Profile = sketch4
pad3.Length = 70

sketch5 = body.newObject("Sketcher::SketchObject", "Sketch004")
sketch5.AttachmentSupport = (doc.getObject("XZ_Plane"), [""])
sketch5.MapMode = "FlatFace"
sketch5.AttachmentOffset = App.Placement(App.Vector(0, 0, 149.2), App.Rotation())
sketch5.addGeometry(Part.Circle(App.Vector(122, 40, 0), App.Vector(0, 0, 1), 6), False)
sketch5.addConstraint(Sketcher.Constraint("Diameter", 0, Q("12.7 mm")))
sketch5.addConstraint(Sketcher.Constraint("DistanceY", -1, 1, 0, 3, Q("40 mm")))
sketch5.addConstraint(Sketcher.Constraint("DistanceX", -1, 1, 0, 3, Q("122.45 mm")))
pocket2 = body.newObject("PartDesign::Pocket", "Pocket001")
pocket2.Profile = sketch5
pocket2.Length = 322

sketch6 = body.newObject("Sketcher::SketchObject", "Sketch005")
sketch6.AttachmentSupport = (doc.getObject("XZ_Plane"), [""])
sketch6.MapMode = "FlatFace"
sketch6.AttachmentOffset = App.Placement(App.Vector(0, 0, -61.7), App.Rotation())
sketch6.addGeometry(Part.Circle(App.Vector(72.5, 15.5, 0), App.Vector(0, 0, 1), 3), False)
sketch6.addGeometry(Part.Circle(App.Vector(51.3, 52.2, 0), App.Vector(0, 0, 1), 3), False)
sketch6.addGeometry(Part.Circle(App.Vector(93.7, 52.2, 0), App.Vector(0, 0, 1), 3), False)
sketch6.addGeometry(Part.Circle(App.Vector(72.5, 40, 0), App.Vector(0, 0, 1), 5), False)
sketch6.addConstraint(Sketcher.Constraint("Equal", 0, 1))
sketch6.addConstraint(Sketcher.Constraint("Equal", 1, 2))
sketch6.addConstraint(Sketcher.Constraint("Horizontal", 1, 3, 2, 3))
sketch6.addConstraint(Sketcher.Constraint("Vertical", 0, 3, 3, 3))
sketch6.addConstraint(Sketcher.Constraint("Diameter", 0, Q("6 mm")))
sketch6.addConstraint(Sketcher.Constraint("Diameter", 3, Q("10 mm")))
sketch6.addConstraint(Sketcher.Constraint("DistanceY", -1, 1, 3, 3, Q("40 mm")))
sketch6.addConstraint(Sketcher.Constraint("DistanceX", -1, 1, 0, 3, Q("72.5 mm")))
sketch6.addConstraint(Sketcher.Constraint("DistanceY", -1, 1, 0, 3, Q("15.5 mm")))
sketch6.addConstraint(Sketcher.Constraint("DistanceY", -1, 1, 1, 3, Q("52.25 mm")))
sketch6.addConstraint(Sketcher.Constraint("DistanceX", -1, 1, 1, 3, Q("51.282378 mm")))
sketch6.addConstraint(Sketcher.Constraint("DistanceX", -1, 1, 2, 3, Q("93.717622 mm")))
pocket3 = body.newObject("PartDesign::Pocket", "Pocket002")
pocket3.Profile = sketch6
pocket3.Length = 53
doc.recompute()

mirrored = body.newObject("PartDesign::Mirrored", "Mirrored")
mirrored.Originals = [pocket3]
mirrored.MirrorPlane = (doc.getObject("XZ_Plane"), [""])
body.Tip = mirrored

sketch7 = body.newObject("Sketcher::SketchObject", "Sketch006")
sketch7.AttachmentSupport = (doc.getObject("XZ_Plane"), [""])
sketch7.MapMode = "FlatFace"
sketch7.AttachmentOffset = App.Placement(App.Vector(0, 0, 141.7), App.Rotation())
sketch7.addGeometry(Part.Circle(App.Vector(-102, 40, 0), App.Vector(0, 0, 1), 6), False)
sketch7.addConstraint(Sketcher.Constraint("Diameter", 0, Q("12.7 mm")))
sketch7.addConstraint(Sketcher.Constraint("DistanceY", -1, 1, 0, 3, Q("40 mm")))
sketch7.addConstraint(Sketcher.Constraint("DistanceX", 0, 3, -1, 1, Q("102.45 mm")))
pad4 = body.newObject("PartDesign::Pad", "Pad003")
pad4.Profile = sketch7
pad4.Length = 60
doc.recompute()

mirrored2 = body.newObject("PartDesign::Mirrored", "Mirrored001")
mirrored2.Originals = [pad4]
mirrored2.MirrorPlane = (doc.getObject("XZ_Plane"), [""])
body.Tip = mirrored2

sketch8 = body.newObject("Sketcher::SketchObject", "Sketch007")
sketch8.AttachmentSupport = (doc.getObject("XZ_Plane"), [""])
sketch8.MapMode = "FlatFace"
sketch8.AttachmentOffset = App.Placement(App.Vector(0, 0, 200), App.Rotation())
sketch8.addGeometry(Part.Circle(App.Vector(-205, 78, 0), App.Vector(0, 0, 1), 5), False)
sketch8.addGeometry(Part.Circle(App.Vector(-205, 30, 0), App.Vector(0, 0, 1), 5), False)
sketch8.addConstraint(Sketcher.Constraint("Equal", 0, 1))
sketch8.addConstraint(Sketcher.Constraint("Vertical", 0, 3, 1, 3))
sketch8.addConstraint(Sketcher.Constraint("Diameter", 0, Q("10 mm")))
sketch8.addConstraint(Sketcher.Constraint("DistanceX", 0, 3, -1, 1, Q("205 mm")))
sketch8.addConstraint(Sketcher.Constraint("DistanceY", -1, 1, 1, 3, Q("30 mm")))
sketch8.addConstraint(Sketcher.Constraint("DistanceY", -1, 1, 0, 3, Q("77.5 mm")))
pocket4 = body.newObject("PartDesign::Pocket", "Pocket003")
pocket4.Profile = sketch8
pocket4.Length = 490

sketch9 = body.newObject("Sketcher::SketchObject", "Sketch008")
sketch9.AttachmentSupport = (doc.getObject("XY_Plane"), [""])
sketch9.MapMode = "FlatFace"
sketch9.AttachmentOffset = App.Placement(App.Vector(0, 0, 7.5), App.Rotation())
sketch9.addGeometry(Part.LineSegment(App.Vector(-32, 132, 0), App.Vector(-32, 122, 0)), False)
sketch9.addGeometry(Part.LineSegment(App.Vector(-32, 122, 0), App.Vector(-2, 122, 0)), False)
sketch9.addGeometry(Part.LineSegment(App.Vector(-2, 122, 0), App.Vector(-2, 132, 0)), False)
sketch9.addGeometry(Part.LineSegment(App.Vector(-2, 132, 0), App.Vector(-32, 132, 0)), False)
sketch9.addConstraint(Sketcher.Constraint("Coincident", 0, 2, 1, 1))
sketch9.addConstraint(Sketcher.Constraint("Coincident", 1, 2, 2, 1))
sketch9.addConstraint(Sketcher.Constraint("Coincident", 2, 2, 3, 1))
sketch9.addConstraint(Sketcher.Constraint("Coincident", 3, 2, 0, 1))
sketch9.addConstraint(Sketcher.Constraint("Vertical", 0))
sketch9.addConstraint(Sketcher.Constraint("Horizontal", 1))
sketch9.addConstraint(Sketcher.Constraint("Vertical", 2))
sketch9.addConstraint(Sketcher.Constraint("Horizontal", 3))
sketch9.addConstraint(Sketcher.Constraint("DistanceX", 1, 1, 1, 2, Q("30 mm")))
sketch9.addConstraint(Sketcher.Constraint("DistanceY", 0, 2, 0, 1, Q("10 mm")))
sketch9.addConstraint(Sketcher.Constraint("DistanceX", 0, 2, -1, 1, Q("32.4 mm")))
sketch9.addConstraint(Sketcher.Constraint("DistanceY", -1, 1, 0, 2, Q("121.7 mm")))
pad5 = body.newObject("PartDesign::Pad", "Pad004")
pad5.Profile = sketch9
pad5.Length = 30

sketch10 = body.newObject("Sketcher::SketchObject", "Sketch009")
sketch10.AttachmentSupport = (doc.getObject("XZ_Plane"), [""])
sketch10.MapMode = "FlatFace"
sketch10.AttachmentOffset = App.Placement(App.Vector(0, 0, -121.7), App.Rotation())
sketch10.addGeometry(Part.Circle(App.Vector(-17, 22, 0), App.Vector(0, 0, 1), 5), False)
sketch10.addConstraint(Sketcher.Constraint("Diameter", 0, Q("10 mm")))
sketch10.addConstraint(Sketcher.Constraint("DistanceX", 0, 3, -1, 1, Q("17.4 mm")))
sketch10.addConstraint(Sketcher.Constraint("DistanceY", -1, 1, 0, 3, Q("22.5 mm")))
pocket5 = body.newObject("PartDesign::Pocket", "Pocket004")
pocket5.Profile = sketch10
pocket5.Length = 10
doc.recompute()

mirrored3 = body.newObject("PartDesign::Mirrored", "Mirrored002")
mirrored3.Originals = [pad5, pocket5]
mirrored3.MirrorPlane = (doc.getObject("XZ_Plane"), [""])
body.Tip = mirrored3

sketch11 = body.newObject("Sketcher::SketchObject", "Sketch010")
sketch11.AttachmentSupport = (doc.getObject("XY_Plane"), [""])
sketch11.MapMode = "FlatFace"
sketch11.AttachmentOffset = App.Placement(App.Vector(0, 0, 7.5), App.Rotation())
sketch11.addGeometry(Part.LineSegment(App.Vector(-225, 150, 0), App.Vector(-225, 140, 0)), False)
sketch11.addGeometry(Part.LineSegment(App.Vector(-225, 140, 0), App.Vector(-195, 140, 0)), False)
sketch11.addGeometry(Part.LineSegment(App.Vector(-195, 140, 0), App.Vector(-195, 150, 0)), False)
sketch11.addGeometry(Part.LineSegment(App.Vector(-195, 150, 0), App.Vector(-225, 150, 0)), False)
sketch11.addConstraint(Sketcher.Constraint("Coincident", 0, 2, 1, 1))
sketch11.addConstraint(Sketcher.Constraint("Coincident", 1, 2, 2, 1))
sketch11.addConstraint(Sketcher.Constraint("Coincident", 2, 2, 3, 1))
sketch11.addConstraint(Sketcher.Constraint("Coincident", 3, 2, 0, 1))
sketch11.addConstraint(Sketcher.Constraint("Vertical", 0))
sketch11.addConstraint(Sketcher.Constraint("Horizontal", 1))
sketch11.addConstraint(Sketcher.Constraint("Vertical", 2))
sketch11.addConstraint(Sketcher.Constraint("Horizontal", 3))
sketch11.addConstraint(Sketcher.Constraint("DistanceX", 1, 1, 1, 2, Q("30 mm")))
sketch11.addConstraint(Sketcher.Constraint("DistanceY", 0, 2, 0, 1, Q("10 mm")))
sketch11.addConstraint(Sketcher.Constraint("DistanceX", 0, 2, -1, 1, Q("225 mm")))
sketch11.addConstraint(Sketcher.Constraint("DistanceY", -1, 1, 0, 2, Q("140 mm")))
pad6 = body.newObject("PartDesign::Pad", "Pad005")
pad6.Profile = sketch11
pad6.Length = 100

sketch12 = body.newObject("Sketcher::SketchObject", "Sketch011")
sketch12.AttachmentSupport = (doc.getObject("XZ_Plane"), [""])
sketch12.MapMode = "FlatFace"
sketch12.AttachmentOffset = App.Placement(App.Vector(0, 0, -140), App.Rotation())
sketch12.addGeometry(Part.Circle(App.Vector(-210, 78, 0), App.Vector(0, 0, 1), 5), False)
sketch12.addGeometry(Part.Circle(App.Vector(-210, 58, 0), App.Vector(0, 0, 1), 5), False)
sketch12.addGeometry(Part.Circle(App.Vector(-210, 38, 0), App.Vector(0, 0, 1), 5), False)
sketch12.addConstraint(Sketcher.Constraint("Equal", 0, 1))
sketch12.addConstraint(Sketcher.Constraint("Equal", 1, 2))
sketch12.addConstraint(Sketcher.Constraint("Vertical", 0, 3, 1, 3))
sketch12.addConstraint(Sketcher.Constraint("Vertical", 1, 3, 2, 3))
sketch12.addConstraint(Sketcher.Constraint("Diameter", 0, Q("10 mm")))
sketch12.addConstraint(Sketcher.Constraint("DistanceX", 0, 3, -1, 1, Q("210 mm")))
sketch12.addConstraint(Sketcher.Constraint("DistanceY", 1, 3, 0, 3, Q("20 mm")))
sketch12.addConstraint(Sketcher.Constraint("DistanceY", 2, 3, 1, 3, Q("20 mm")))
sketch12.addConstraint(Sketcher.Constraint("DistanceY", -1, 1, 0, 3, Q("77.5 mm")))
pocket6 = body.newObject("PartDesign::Pocket", "Pocket005")
pocket6.Profile = sketch12
pocket6.Length = 35
doc.recompute()

mirrored4 = body.newObject("PartDesign::Mirrored", "Mirrored003")
mirrored4.Originals = [pad6, pocket6]
mirrored4.MirrorPlane = (doc.getObject("XZ_Plane"), [""])
body.Tip = mirrored4

doc.recompute()
